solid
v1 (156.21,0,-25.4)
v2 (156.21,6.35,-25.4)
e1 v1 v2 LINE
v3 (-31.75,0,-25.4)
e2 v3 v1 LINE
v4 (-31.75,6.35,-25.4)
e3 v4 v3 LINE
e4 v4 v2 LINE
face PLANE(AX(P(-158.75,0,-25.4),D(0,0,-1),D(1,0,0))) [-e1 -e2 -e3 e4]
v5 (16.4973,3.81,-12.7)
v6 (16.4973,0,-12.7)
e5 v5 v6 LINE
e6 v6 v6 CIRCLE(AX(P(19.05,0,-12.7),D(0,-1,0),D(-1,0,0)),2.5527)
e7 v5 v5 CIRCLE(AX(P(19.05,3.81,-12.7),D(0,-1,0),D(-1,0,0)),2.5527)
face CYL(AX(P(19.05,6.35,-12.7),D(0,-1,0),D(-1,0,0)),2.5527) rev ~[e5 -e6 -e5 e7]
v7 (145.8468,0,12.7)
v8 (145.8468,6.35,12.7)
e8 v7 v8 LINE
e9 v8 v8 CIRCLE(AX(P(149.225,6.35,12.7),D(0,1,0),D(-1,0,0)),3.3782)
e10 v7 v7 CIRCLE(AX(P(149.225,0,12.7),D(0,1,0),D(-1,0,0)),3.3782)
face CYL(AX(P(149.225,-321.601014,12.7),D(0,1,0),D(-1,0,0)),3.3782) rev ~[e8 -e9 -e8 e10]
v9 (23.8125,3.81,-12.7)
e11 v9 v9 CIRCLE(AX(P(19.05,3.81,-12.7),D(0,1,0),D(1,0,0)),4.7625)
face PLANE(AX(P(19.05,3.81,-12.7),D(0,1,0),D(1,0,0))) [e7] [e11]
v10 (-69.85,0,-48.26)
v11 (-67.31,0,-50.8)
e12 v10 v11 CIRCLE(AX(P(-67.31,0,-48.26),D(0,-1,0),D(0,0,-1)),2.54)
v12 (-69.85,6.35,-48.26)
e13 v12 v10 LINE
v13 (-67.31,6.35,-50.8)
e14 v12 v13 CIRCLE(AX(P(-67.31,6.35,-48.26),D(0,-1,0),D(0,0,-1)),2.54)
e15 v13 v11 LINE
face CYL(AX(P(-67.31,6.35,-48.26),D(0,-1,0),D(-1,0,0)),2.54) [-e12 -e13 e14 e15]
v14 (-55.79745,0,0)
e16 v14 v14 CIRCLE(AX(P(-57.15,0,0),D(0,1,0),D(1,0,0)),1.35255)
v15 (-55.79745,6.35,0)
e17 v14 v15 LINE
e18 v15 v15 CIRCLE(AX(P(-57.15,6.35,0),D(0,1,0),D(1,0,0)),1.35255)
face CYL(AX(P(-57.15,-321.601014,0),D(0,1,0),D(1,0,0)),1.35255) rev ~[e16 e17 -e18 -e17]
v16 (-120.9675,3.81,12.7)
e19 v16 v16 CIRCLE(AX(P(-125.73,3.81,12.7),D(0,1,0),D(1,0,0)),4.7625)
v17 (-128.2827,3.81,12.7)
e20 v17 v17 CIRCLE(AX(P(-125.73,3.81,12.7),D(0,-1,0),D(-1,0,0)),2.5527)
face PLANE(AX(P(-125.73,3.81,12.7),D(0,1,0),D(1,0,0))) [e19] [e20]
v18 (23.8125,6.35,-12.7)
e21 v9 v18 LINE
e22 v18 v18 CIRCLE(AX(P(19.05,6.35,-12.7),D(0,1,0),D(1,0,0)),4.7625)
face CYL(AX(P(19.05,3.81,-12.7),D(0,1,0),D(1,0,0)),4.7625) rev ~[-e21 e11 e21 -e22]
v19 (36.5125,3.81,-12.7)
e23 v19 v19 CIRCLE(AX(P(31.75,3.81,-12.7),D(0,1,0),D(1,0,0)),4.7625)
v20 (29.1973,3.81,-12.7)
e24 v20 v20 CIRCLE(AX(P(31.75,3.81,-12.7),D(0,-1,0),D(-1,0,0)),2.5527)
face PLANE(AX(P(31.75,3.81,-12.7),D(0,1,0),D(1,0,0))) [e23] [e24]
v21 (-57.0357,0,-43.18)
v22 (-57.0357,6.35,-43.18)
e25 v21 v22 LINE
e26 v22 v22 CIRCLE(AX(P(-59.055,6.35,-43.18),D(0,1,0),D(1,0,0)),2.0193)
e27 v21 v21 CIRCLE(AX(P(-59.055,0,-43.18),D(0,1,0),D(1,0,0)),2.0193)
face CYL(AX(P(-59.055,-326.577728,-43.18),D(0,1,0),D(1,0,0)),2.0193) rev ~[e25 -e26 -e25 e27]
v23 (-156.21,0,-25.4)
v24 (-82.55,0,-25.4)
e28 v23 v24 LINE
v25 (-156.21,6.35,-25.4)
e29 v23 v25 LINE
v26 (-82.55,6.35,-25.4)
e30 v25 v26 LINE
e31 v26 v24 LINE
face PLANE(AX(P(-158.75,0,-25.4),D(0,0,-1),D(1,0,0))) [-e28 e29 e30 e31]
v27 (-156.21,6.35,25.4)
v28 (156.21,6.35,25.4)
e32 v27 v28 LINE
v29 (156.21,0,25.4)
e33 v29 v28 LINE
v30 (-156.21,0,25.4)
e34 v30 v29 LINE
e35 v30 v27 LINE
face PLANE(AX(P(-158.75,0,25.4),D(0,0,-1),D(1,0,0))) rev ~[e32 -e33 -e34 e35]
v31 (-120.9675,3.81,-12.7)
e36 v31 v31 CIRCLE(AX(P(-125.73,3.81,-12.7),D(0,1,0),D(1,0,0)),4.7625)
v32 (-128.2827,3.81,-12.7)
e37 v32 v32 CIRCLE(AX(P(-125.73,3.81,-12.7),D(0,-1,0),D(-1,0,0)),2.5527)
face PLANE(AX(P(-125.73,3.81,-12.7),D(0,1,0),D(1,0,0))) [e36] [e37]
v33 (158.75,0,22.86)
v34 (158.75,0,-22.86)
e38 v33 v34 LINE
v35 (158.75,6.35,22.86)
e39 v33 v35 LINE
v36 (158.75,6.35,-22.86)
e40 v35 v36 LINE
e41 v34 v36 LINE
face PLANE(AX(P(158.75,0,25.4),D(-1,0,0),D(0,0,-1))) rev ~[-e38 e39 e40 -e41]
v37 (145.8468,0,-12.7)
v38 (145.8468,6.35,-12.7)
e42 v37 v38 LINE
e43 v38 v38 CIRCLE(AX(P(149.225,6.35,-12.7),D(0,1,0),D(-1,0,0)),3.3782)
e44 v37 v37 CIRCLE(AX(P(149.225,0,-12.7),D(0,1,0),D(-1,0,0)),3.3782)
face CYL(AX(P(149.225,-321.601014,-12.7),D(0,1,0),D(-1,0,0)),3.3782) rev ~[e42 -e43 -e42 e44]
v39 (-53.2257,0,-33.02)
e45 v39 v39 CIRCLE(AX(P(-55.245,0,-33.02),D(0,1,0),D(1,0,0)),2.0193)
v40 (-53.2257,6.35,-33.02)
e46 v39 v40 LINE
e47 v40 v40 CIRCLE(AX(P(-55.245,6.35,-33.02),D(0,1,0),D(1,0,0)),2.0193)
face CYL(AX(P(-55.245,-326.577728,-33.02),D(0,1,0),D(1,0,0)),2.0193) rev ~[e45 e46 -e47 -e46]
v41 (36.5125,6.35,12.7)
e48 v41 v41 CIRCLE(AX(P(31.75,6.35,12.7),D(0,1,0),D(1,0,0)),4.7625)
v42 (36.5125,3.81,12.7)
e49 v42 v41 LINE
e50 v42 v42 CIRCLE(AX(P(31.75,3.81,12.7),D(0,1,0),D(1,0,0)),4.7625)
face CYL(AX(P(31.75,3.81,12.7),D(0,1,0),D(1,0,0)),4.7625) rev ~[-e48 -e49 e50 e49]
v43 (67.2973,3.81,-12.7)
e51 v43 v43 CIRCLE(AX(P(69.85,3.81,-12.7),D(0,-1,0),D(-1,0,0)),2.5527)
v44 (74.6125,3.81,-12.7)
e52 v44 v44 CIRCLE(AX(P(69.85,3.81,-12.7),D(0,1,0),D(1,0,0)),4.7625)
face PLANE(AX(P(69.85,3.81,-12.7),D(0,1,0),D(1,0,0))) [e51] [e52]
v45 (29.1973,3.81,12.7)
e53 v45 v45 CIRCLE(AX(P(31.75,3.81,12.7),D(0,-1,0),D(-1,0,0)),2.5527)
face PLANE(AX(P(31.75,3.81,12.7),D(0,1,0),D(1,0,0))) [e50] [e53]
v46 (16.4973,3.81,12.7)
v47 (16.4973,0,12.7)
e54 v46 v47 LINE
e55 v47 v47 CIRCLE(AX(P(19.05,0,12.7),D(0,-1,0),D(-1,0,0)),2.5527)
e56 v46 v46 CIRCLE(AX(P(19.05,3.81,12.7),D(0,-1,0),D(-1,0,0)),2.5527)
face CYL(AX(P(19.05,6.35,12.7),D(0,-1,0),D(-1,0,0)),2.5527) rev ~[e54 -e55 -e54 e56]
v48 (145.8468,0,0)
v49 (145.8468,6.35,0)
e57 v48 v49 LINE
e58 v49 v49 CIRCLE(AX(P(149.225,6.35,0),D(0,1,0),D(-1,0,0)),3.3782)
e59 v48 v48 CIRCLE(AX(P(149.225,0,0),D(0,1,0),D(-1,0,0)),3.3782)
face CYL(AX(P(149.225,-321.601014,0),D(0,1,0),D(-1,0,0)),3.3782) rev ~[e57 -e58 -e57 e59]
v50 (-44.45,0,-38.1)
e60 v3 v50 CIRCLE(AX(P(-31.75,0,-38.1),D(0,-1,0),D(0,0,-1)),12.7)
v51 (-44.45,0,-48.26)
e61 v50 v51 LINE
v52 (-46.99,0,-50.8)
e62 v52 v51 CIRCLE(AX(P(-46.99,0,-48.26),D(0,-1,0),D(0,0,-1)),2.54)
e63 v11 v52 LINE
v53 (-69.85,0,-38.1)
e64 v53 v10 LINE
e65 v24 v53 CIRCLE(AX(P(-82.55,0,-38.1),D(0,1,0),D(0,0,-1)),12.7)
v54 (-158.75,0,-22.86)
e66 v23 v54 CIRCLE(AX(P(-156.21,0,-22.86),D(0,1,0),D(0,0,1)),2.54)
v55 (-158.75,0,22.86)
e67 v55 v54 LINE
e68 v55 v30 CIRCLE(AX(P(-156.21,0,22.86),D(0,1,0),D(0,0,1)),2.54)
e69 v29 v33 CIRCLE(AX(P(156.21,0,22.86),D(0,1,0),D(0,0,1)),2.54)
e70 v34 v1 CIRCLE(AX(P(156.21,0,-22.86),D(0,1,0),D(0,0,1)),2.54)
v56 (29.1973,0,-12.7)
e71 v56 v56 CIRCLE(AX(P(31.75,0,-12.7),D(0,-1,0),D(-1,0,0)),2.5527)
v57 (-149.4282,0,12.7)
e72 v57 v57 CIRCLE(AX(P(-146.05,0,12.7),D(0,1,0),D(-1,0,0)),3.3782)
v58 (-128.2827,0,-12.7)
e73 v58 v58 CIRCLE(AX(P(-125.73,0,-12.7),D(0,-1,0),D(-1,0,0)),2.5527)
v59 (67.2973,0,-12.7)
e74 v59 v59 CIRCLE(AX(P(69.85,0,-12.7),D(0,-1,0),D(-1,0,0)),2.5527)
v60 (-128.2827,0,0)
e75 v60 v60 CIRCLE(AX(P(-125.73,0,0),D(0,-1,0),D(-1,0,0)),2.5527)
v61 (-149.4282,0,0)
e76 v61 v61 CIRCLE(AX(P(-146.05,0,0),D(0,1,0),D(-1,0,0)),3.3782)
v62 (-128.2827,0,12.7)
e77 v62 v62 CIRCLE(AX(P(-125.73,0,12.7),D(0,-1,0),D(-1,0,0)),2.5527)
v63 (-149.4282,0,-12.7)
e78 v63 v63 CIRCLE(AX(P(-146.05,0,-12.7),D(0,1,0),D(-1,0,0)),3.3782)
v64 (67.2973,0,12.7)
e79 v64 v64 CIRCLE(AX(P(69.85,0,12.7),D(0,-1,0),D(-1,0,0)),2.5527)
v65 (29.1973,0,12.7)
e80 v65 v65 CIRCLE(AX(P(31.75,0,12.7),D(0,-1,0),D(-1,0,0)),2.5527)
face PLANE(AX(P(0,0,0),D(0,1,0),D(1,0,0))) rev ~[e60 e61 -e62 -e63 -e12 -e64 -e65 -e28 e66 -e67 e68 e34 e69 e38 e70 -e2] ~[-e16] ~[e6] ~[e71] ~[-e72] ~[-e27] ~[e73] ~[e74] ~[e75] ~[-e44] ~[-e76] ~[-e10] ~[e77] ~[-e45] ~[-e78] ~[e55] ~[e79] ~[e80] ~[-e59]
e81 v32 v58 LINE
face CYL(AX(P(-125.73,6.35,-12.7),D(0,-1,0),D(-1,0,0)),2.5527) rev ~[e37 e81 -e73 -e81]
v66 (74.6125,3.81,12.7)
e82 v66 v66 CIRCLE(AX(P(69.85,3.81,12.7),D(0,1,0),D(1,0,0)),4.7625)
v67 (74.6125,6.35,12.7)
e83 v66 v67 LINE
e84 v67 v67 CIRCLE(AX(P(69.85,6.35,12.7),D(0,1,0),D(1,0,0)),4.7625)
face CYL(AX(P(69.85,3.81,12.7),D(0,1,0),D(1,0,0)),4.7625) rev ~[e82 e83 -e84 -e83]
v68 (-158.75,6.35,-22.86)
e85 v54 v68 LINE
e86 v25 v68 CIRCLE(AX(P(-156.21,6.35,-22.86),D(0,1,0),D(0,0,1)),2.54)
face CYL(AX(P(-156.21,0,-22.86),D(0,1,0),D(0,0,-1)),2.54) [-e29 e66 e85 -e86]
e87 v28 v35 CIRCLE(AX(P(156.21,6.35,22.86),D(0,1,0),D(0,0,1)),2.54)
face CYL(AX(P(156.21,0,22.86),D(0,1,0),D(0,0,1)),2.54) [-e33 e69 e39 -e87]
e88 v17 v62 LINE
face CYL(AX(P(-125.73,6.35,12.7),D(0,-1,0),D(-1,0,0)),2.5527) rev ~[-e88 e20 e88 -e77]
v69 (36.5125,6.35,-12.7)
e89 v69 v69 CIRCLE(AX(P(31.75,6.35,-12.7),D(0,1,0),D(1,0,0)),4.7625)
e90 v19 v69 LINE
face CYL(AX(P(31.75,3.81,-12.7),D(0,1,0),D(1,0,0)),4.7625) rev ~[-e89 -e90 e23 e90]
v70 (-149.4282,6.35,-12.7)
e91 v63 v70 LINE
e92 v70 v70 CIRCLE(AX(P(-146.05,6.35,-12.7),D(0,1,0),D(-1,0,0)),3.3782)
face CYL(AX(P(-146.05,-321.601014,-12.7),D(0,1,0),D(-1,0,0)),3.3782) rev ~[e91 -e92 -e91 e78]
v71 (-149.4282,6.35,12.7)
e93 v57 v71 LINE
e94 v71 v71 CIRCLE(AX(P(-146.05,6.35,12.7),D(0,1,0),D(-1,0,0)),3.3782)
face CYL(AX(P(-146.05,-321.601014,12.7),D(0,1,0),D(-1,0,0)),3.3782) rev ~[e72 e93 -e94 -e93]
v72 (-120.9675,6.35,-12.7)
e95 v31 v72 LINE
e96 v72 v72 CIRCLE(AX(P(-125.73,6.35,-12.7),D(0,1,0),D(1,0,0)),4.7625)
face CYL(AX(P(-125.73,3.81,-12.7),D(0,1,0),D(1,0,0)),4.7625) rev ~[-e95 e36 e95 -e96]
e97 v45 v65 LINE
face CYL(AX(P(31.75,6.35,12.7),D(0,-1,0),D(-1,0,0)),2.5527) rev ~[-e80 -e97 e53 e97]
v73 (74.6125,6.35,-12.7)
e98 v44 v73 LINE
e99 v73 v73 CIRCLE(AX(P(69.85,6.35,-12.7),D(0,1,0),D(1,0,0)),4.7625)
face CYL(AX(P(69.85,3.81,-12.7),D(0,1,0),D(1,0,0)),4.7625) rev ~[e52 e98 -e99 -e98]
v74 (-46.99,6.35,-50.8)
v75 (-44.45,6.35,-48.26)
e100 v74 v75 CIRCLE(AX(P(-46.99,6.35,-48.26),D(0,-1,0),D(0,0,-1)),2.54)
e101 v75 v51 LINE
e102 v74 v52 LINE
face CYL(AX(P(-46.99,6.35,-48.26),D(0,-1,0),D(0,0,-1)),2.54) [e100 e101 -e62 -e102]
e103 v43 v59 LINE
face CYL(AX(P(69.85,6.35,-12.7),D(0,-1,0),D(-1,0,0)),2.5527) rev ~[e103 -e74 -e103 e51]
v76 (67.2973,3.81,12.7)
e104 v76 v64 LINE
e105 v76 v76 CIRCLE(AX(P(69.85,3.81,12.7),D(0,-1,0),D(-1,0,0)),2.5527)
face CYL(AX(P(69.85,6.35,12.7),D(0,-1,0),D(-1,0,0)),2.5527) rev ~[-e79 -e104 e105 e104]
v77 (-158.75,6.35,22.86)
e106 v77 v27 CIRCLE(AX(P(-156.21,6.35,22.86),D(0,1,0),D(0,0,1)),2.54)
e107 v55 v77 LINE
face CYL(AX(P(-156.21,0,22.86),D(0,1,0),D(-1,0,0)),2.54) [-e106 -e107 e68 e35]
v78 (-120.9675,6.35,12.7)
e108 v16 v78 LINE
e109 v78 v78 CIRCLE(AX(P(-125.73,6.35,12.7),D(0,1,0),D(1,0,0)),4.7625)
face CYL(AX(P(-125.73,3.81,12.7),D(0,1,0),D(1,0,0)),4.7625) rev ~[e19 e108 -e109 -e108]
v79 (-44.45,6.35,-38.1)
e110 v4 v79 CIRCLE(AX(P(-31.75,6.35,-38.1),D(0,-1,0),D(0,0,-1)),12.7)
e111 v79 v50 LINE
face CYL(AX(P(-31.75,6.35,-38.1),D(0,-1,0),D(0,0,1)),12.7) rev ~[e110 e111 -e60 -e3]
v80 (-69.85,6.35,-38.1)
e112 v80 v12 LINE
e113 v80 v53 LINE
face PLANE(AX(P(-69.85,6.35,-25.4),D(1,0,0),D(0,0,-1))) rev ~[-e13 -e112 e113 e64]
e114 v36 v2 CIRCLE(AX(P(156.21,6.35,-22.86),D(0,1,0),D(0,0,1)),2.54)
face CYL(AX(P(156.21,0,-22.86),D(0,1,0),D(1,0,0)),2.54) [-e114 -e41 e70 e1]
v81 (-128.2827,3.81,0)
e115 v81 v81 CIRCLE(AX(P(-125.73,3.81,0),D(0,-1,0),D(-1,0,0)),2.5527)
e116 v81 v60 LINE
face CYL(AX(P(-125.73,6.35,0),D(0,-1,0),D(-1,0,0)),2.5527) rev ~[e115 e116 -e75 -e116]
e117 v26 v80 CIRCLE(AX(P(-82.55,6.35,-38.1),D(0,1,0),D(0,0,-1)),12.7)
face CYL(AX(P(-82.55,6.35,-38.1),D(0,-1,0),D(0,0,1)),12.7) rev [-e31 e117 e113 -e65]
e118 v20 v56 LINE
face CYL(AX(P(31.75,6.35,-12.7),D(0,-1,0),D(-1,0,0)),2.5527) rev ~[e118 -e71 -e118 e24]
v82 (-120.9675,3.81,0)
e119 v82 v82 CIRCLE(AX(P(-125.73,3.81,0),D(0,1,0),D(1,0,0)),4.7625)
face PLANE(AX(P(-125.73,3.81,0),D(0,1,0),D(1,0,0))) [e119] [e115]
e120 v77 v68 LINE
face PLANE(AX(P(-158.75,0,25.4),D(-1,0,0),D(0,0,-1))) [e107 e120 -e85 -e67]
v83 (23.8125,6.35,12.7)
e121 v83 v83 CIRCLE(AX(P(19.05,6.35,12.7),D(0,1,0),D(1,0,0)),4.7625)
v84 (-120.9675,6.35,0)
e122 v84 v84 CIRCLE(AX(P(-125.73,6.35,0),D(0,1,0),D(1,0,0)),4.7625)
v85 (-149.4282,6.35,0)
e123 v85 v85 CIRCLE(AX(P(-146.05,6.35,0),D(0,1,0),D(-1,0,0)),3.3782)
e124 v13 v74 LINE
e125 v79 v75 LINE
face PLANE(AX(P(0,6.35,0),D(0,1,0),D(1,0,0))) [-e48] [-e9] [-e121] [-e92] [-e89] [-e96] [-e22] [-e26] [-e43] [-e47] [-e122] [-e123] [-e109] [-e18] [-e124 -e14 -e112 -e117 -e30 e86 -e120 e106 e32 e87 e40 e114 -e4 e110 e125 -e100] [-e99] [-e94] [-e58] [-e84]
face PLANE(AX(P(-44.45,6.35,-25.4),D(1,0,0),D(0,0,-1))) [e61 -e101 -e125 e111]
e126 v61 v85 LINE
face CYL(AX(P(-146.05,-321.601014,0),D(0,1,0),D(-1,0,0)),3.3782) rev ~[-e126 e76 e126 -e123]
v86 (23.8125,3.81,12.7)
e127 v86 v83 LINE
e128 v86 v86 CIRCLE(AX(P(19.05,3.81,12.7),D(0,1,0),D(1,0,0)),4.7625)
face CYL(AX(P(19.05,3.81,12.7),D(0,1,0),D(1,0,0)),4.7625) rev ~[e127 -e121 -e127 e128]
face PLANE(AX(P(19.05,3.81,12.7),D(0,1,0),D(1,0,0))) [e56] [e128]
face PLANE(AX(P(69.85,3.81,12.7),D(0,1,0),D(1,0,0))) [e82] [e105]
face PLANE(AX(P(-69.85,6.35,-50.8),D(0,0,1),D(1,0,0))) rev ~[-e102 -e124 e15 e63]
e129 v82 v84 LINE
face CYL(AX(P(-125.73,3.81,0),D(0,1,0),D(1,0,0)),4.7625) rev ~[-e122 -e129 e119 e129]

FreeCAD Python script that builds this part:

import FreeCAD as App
import Part
import Sketcher

V = App.Vector
Q = App.Units.Quantity


def edges_at(feature, points):
    """Names of the edges that pass closest to the given points."""
    edges = feature.Shape.Edges
    near = lambda p: min(range(len(edges)), key=lambda i: edges[i].distToShape(Part.Vertex(*p))[0])
    return sorted({f"Edge{near(p) + 1}" for p in points})


def add_polygon(sketch, points):
    """Adds a closed chain of lines whose ends are joined by coincident constraints."""
    first, n = sketch.GeometryCount, len(points)
    for a, b in zip(points, points[1:] + points[:1]):
        sketch.addGeometry(Part.LineSegment(App.Vector(*a, 0), App.Vector(*b, 0)), False)
    for i in range(n):
        sketch.addConstraint(Sketcher.Constraint("Coincident", first + i, 2, first + (i + 1) % n, 1))

doc = App.newDocument("Part")
body = doc.addObject("PartDesign::Body", "Body")

sketch1 = body.newObject("Sketcher::SketchObject", "Sketch")
sketch1.AttachmentSupport = (doc.getObject("XZ_Plane"), [""])
sketch1.MapMode = "FlatFace"
add_polygon(sketch1, [(-159, -25), (-159, 25), (159, 25), (159, -25)])
sketch1.addConstraint([
    Sketcher.Constraint("Vertical", 0),
    Sketcher.Constraint("Horizontal", 1),
    Sketcher.Constraint("Vertical", 2),
    Sketcher.Constraint("Horizontal", 3),
    Sketcher.Constraint("Symmetric", 0, 2, 2, 2, -1, 1),
    Sketcher.Constraint("DistanceY", 0, 1, 0, 2, Q("2 in")),
    Sketcher.Constraint("DistanceX", 1, 1, 1, 2, Q("12.5 in")),
])
pad1 = body.newObject("PartDesign::Pad", "Pad")
pad1.Profile = sketch1
pad1.Length = Q("0.25 in")
pad1.Reversed = True

sketch2 = body.newObject("Sketcher::SketchObject", "Sketch001")
sketch2.AttachmentSupport = (doc.getObject("XZ_Plane"), [""])
sketch2.MapMode = "FlatFace"
sketch2.AttachmentOffset = App.Placement(V(0, 0, -0.25 * 25.4), App.Rotation())
sketch2.addGeometry([
    Part.Circle(V(31.8, 12.7, 0), V(0, 0, 1), 2.6),
    Part.Circle(V(19.1, -12.7, 0), V(0, 0, 1), 2.6),
    Part.Circle(V(69.8, -12.7, 0), V(0, 0, 1), 2.6),
    Part.Circle(V(19.1, 12.7, 0), V(0, 0, 1), 2.6),
    Part.Circle(V(69.8, 12.7, 0), V(0, 0, 1), 2.6),
    Part.Circle(V(-125.7, -12.7, 0), V(0, 0, 1), 2.6),
    Part.Circle(V(-125.7, 0, 0), V(0, 0, 1), 2.6),
    Part.Circle(V(-125.7, 12.7, 0), V(0, 0, 1), 2.6),
    Part.Circle(V(31.8, -12.7, 0), V(0, 0, 1), 2.6),
], False)
sketch2.addConstraint([
    Sketcher.Constraint("Equal", 0, 1),
    Sketcher.Constraint("Equal", 1, 2),
    Sketcher.Constraint("Equal", 2, 3),
    Sketcher.Constraint("Equal", 3, 4),
    Sketcher.Constraint("Equal", 4, 5),
    Sketcher.Constraint("Equal", 5, 6),
    Sketcher.Constraint("Equal", 6, 7),
    Sketcher.Constraint("Equal", 7, 8),
    Sketcher.Constraint("Symmetric", 1, 3, 3, 3, -1),
    Sketcher.Constraint("Symmetric", 2, 3, 4, 3, -1),
    Sketcher.Constraint("Symmetric", 5, 3, 7, 3, -1),
    Sketcher.Constraint("Symmetric", 0, 3, 8, 3, -1),
    Sketcher.Constraint("PointOnObject", 6, 3, -1),
    Sketcher.Constraint("Horizontal", 1, 3, 2, 3),
    Sketcher.Constraint("Horizontal", 0, 3, 3, 3),
    Sketcher.Constraint("Horizontal", 2, 3, 5, 3),
    Sketcher.Constraint("Vertical", 5, 3, 6, 3),
    Sketcher.Constraint("Diameter", 0, Q("0.201 in")),
    Sketcher.Constraint("DistanceY", 1, 3, 0, 3, Q("1 in")),
    Sketcher.Constraint("DistanceX", 1, 3, 2, 3, Q("2 in")),
    Sketcher.Constraint("DistanceX", 1, 3, 0, 3, Q("0.5 in")),
    Sketcher.Constraint("DistanceX", 5, 3, 1, 3, Q("5.7 in")),
    Sketcher.Constraint("DistanceX", -1, 1, 0, 3, Q("1.25 in")),
])
doc.recompute()
hole = body.newObject("PartDesign::Hole", "Hole")
hole.Profile = sketch2
hole.ThreadType = "None"
hole.Diameter = Q("0.201 in")
hole.DepthType = "ThroughAll"
hole.HoleCutType = "Counterbore"
hole.HoleCutDiameter = Q("0.375 in")
hole.HoleCutDepth = Q("0.1 in")
hole.Reversed = True

sketch3 = body.newObject("Sketcher::SketchObject", "Sketch002")
sketch3.AttachmentSupport = (doc.getObject("XZ_Plane"), [""])
sketch3.MapMode = "FlatFace"
sketch3.addGeometry([
    Part.Circle(V(-146.1, 12.7, 0), V(0, 0, 1), 3.4),
    Part.Circle(V(-146.1, 0, 0), V(0, 0, 1), 3.4),
    Part.Circle(V(-146.1, -12.7, 0), V(0, 0, 1), 3.4),
    Part.Circle(V(149.2, 12.7, 0), V(0, 0, 1), 3.4),
    Part.Circle(V(149.2, 0, 0), V(0, 0, 1), 3.4),
    Part.Circle(V(149.2, -12.7, 0), V(0, 0, 1), 3.4),
], False)
sketch3.addConstraint([
    Sketcher.Constraint("Equal", 0, 1),
    Sketcher.Constraint("Equal", 1, 2),
    Sketcher.Constraint("Equal", 2, 3),
    Sketcher.Constraint("Equal", 3, 4),
    Sketcher.Constraint("Equal", 4, 5),
    Sketcher.Constraint("Symmetric", 0, 3, 2, 3, -1),
    Sketcher.Constraint("Symmetric", 3, 3, 5, 3, -1),
    Sketcher.Constraint("PointOnObject", 1, 3, -1),
    Sketcher.Constraint("PointOnObject", 4, 3, -1),
    Sketcher.Constraint("Horizontal", 0, 3, 3, 3),
    Sketcher.Constraint("Vertical", 0, 3, 1, 3),
    Sketcher.Constraint("Vertical", 3, 3, 4, 3),
    Sketcher.Constraint("Diameter", 0, Q("0.266 in")),
    Sketcher.Constraint("DistanceY", 2, 3, 0, 3, Q("1 in")),
    Sketcher.Constraint("DistanceX", 0, 3, -1, 1, Q("5.75 in")),
    Sketcher.Constraint("DistanceX", -1, 1, 3, 3, Q("5.875 in")),
])
doc.recompute()
hole2 = body.newObject("PartDesign::Hole", "Hole001")
hole2.Profile = sketch3
hole2.ThreadType = "None"
hole2.Diameter = Q("0.266 in")
hole2.DepthType = "ThroughAll"

sketch4 = body.newObject("Sketcher::SketchObject", "Sketch003")
sketch4.AttachmentSupport = (doc.getObject("XZ_Plane"), [""])
sketch4.MapMode = "FlatFace"
sketch4.addGeometry(Part.Circle(V(-57.1, 0, 0), V(0, 0, 1), 1.4), False)
sketch4.addConstraint([
    Sketcher.Constraint("PointOnObject", 0, 3, -1),
    Sketcher.Constraint("Diameter", 0, Q("0.1065 in")),
    Sketcher.Constraint("DistanceX", 0, 3, -1, 1, Q("2.25 in")),
])
doc.recompute()
hole3 = body.newObject("PartDesign::Hole", "Hole002")
hole3.Profile = sketch4
hole3.ThreadType = "None"
hole3.Diameter = Q("0.1065 in")
hole3.DepthType = "ThroughAll"

sketch5 = body.newObject("Sketcher::SketchObject", "Sketch004")
sketch5.AttachmentSupport = (doc.getObject("XZ_Plane"), [""])
sketch5.MapMode = "FlatFace"
sketch5.AttachmentOffset = App.Placement(V(0, 0, -0.25 * 25.4), App.Rotation())
add_polygon(sketch5, [(-70, -51), (-70, -25), (-44, -25), (-44, -51)])
sketch5.addConstraint([
    Sketcher.Constraint("Vertical", 0),
    Sketcher.Constraint("Horizontal", 1),
    Sketcher.Constraint("Vertical", 2),
    Sketcher.Constraint("Horizontal", 3),
    Sketcher.Constraint("Equal", 3, 0),
    Sketcher.Constraint("DistanceX", 1, 1, 1, 2, Q("1 in")),
    Sketcher.Constraint("DistanceY", 0, 2, -1, 1, Q("1 in")),
    Sketcher.Constraint("DistanceX", 0, 2, -1, 1, Q("2.75 in")),
])
pad2 = body.newObject("PartDesign::Pad", "Pad001")
pad2.Profile = sketch5
pad2.Length = Q("0.25 in")

sketch6 = body.newObject("Sketcher::SketchObject", "Sketch005")
sketch6.AttachmentSupport = (doc.getObject("XZ_Plane"), [""])
sketch6.MapMode = "FlatFace"
sketch6.addGeometry([
    Part.Circle(V(-59.1, -43.2, 0), V(0, 0, 1), 2),
    Part.Circle(V(-55.2, -33, 0), V(0, 0, 1), 2),
], False)
sketch6.addConstraint([
    Sketcher.Constraint("Equal", 0, 1),
    Sketcher.Constraint("Diameter", 0, Q("0.159 in")),
    Sketcher.Constraint("DistanceY", 0, 3, -1, 1, Q("1.7 in")),
    Sketcher.Constraint("DistanceY", 1, 3, -1, 1, Q("1.3 in")),
    Sketcher.Constraint("DistanceX", 0, 3, 1, 3, Q("0.15 in")),
    Sketcher.Constraint("DistanceX", 0, 3, -1, 1, Q("2.325 in")),
])
doc.recompute()
hole4 = body.newObject("PartDesign::Hole", "Hole003")
hole4.Profile = sketch6
hole4.ThreadType = "None"
hole4.Diameter = Q("0.159 in")
hole4.DepthType = "ThroughAll"
doc.recompute()

fillet = body.newObject("PartDesign::Fillet", "Fillet")
fillet.Base = (hole4, edges_at(hole4, [(-69.85, 3.175, -25.4), (-44.45, 3.175, -25.4)]))
fillet.Radius = Q("0.5 in")
doc.recompute()

fillet2 = body.newObject("PartDesign::Fillet", "Fillet001")
fillet2.Base = (fillet, edges_at(fillet, [
    (-44.45, 3.175, -50.8),
    (-69.85, 3.175, -50.8),
    (158.75, 3.175, 25.4),
    (-158.75, 3.175, 25.4),
    (-158.75, 3.175, -25.4),
    (158.75, 3.175, -25.4),
]))
fillet2.Radius = Q("0.1 in")

doc.recompute()
